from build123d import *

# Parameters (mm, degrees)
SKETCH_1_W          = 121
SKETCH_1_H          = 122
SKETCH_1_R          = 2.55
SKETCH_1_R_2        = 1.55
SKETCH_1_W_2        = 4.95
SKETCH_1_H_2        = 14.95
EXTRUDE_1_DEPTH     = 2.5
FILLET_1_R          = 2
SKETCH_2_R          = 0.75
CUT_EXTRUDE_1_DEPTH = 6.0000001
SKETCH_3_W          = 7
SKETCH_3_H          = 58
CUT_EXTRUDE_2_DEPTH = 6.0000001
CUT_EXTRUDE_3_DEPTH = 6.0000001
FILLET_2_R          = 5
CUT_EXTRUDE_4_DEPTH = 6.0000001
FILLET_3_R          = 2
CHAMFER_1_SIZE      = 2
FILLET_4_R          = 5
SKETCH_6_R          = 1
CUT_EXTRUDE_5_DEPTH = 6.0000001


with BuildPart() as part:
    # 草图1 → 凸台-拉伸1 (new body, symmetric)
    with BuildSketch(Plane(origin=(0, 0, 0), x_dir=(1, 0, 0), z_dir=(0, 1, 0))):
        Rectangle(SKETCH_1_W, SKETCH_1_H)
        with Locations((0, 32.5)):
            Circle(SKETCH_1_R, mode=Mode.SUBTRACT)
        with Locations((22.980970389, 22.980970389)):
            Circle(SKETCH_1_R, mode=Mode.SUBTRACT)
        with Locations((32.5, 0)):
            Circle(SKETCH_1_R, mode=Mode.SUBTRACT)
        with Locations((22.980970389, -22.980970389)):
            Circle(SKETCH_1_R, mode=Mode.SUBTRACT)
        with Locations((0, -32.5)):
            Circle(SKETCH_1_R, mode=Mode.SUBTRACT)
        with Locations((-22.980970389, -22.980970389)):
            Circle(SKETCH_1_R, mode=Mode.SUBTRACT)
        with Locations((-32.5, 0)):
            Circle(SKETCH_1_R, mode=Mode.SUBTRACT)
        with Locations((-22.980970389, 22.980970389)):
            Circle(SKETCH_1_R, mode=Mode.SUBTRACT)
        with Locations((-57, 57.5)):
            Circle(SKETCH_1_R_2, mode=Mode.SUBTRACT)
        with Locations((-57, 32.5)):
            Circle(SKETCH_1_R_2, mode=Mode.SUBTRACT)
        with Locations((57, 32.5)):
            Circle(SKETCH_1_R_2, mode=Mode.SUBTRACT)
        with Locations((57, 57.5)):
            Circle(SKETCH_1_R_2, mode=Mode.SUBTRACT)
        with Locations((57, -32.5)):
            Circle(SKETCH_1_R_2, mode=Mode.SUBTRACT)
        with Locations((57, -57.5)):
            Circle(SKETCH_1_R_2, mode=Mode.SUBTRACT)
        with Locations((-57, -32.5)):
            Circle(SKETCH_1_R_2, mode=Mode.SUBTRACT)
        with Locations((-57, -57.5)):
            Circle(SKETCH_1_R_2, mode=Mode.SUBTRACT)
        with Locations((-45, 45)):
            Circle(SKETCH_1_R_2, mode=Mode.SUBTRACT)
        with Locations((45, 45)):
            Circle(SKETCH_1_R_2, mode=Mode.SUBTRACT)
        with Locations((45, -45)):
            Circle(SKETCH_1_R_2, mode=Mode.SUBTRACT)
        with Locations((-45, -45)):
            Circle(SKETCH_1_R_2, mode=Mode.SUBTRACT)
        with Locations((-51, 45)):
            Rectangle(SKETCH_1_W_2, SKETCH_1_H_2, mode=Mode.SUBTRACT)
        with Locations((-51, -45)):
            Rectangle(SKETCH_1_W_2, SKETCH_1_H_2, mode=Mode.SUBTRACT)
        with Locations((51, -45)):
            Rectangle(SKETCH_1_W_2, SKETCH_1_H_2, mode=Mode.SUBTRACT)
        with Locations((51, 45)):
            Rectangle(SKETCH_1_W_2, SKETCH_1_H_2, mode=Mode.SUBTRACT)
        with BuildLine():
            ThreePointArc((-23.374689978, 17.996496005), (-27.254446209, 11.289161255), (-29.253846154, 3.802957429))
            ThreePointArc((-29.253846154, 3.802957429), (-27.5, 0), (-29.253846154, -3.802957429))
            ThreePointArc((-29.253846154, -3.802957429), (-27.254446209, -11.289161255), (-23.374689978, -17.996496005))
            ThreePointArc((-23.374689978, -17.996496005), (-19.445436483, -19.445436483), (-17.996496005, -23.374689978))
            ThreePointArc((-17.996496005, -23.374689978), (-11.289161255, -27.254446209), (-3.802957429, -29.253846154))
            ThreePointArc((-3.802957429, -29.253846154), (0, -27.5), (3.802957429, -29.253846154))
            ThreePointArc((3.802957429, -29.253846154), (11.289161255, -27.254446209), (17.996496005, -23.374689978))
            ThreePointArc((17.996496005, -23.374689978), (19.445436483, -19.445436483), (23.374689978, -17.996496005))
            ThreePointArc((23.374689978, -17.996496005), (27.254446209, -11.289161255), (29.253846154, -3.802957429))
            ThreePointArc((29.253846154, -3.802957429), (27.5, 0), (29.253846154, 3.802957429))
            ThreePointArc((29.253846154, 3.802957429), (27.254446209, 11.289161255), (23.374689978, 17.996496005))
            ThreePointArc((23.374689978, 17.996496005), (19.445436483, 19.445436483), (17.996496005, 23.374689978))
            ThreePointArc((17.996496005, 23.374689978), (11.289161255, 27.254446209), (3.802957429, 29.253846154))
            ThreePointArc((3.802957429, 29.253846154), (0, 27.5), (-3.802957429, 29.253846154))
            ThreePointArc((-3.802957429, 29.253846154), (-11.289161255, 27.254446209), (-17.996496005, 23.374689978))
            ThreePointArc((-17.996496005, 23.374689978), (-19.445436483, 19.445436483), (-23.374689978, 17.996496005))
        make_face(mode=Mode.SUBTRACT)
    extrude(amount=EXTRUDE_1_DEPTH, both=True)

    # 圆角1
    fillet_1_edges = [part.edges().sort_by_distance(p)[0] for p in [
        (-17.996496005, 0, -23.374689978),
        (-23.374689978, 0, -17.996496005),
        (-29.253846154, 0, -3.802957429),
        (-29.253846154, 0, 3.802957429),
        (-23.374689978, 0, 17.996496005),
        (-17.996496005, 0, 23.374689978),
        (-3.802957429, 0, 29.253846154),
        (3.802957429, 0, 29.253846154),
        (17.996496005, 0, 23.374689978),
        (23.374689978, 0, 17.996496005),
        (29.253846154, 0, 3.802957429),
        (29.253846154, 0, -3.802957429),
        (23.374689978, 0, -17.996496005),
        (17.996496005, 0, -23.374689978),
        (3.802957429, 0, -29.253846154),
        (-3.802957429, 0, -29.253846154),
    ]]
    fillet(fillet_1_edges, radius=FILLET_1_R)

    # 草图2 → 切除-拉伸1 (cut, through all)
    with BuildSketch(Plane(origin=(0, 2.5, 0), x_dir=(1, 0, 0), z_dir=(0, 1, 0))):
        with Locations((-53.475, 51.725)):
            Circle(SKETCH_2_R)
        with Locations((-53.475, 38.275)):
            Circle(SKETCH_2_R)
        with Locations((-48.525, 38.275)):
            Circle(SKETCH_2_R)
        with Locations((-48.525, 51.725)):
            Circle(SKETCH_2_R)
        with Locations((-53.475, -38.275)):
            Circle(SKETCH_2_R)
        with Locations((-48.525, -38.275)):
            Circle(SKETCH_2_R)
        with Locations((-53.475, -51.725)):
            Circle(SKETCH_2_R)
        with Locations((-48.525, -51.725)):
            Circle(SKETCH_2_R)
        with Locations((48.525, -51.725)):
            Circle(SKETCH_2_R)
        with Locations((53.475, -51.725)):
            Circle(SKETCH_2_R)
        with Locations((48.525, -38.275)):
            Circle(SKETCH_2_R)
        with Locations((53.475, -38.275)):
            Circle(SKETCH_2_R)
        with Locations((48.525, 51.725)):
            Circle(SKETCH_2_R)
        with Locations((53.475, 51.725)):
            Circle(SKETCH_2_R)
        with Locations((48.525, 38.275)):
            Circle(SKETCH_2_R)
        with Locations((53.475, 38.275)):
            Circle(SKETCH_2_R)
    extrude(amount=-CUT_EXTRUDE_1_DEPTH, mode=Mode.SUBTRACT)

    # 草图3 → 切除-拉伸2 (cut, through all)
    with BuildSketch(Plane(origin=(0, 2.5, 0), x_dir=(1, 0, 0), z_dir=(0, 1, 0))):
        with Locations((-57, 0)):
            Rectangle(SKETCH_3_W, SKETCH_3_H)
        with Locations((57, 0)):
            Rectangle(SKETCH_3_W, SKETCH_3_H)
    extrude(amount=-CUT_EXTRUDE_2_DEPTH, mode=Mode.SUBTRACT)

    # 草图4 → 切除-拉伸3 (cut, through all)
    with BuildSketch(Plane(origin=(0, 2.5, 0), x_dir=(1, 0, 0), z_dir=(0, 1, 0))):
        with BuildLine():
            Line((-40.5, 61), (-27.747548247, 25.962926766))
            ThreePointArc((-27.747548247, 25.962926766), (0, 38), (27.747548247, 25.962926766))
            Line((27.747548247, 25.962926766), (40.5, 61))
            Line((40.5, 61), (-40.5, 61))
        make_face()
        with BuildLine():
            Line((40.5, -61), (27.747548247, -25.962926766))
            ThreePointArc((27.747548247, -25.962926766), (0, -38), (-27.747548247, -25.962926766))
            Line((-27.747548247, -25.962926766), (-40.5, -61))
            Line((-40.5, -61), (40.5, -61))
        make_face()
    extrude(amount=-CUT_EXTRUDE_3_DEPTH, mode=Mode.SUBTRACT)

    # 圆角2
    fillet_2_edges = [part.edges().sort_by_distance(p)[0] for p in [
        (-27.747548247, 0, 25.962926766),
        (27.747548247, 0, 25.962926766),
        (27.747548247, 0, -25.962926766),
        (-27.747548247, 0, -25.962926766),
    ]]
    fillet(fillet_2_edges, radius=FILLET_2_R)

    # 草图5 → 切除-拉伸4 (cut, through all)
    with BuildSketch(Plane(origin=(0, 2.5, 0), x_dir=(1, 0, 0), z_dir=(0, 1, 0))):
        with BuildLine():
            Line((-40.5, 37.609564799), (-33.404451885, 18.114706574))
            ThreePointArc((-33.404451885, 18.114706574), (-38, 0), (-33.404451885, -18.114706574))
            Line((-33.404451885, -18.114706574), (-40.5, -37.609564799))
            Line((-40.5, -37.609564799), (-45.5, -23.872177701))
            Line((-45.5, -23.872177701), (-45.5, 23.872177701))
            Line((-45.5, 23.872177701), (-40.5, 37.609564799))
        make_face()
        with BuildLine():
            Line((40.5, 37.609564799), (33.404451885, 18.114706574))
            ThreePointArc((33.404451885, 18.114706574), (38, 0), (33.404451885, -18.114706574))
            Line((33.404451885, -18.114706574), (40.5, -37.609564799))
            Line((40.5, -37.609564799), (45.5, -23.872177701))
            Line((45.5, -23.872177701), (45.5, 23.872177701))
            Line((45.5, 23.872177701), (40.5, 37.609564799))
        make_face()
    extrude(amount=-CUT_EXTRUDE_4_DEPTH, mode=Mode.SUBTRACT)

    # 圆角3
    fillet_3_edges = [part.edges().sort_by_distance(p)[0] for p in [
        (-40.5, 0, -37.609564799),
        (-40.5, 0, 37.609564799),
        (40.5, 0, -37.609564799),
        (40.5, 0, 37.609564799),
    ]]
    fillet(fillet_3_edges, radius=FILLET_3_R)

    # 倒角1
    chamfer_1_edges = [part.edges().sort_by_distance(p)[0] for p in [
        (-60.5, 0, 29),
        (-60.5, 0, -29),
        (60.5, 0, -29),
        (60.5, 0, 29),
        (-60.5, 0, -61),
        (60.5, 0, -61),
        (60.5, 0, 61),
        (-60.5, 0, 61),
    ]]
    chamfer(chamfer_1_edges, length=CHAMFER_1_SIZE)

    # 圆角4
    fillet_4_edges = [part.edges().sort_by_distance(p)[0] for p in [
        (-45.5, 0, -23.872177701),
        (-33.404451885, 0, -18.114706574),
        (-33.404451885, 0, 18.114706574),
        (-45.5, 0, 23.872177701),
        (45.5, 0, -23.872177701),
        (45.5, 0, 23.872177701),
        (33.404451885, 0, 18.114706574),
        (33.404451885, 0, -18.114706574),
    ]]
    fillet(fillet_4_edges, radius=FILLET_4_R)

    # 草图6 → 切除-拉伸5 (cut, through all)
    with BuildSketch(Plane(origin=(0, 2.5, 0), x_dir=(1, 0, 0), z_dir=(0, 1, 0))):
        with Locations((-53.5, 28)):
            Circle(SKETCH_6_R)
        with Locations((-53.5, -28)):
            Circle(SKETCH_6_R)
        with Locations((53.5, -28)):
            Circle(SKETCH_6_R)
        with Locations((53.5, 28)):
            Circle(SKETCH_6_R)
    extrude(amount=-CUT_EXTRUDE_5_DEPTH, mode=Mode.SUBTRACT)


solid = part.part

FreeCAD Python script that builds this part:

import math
import FreeCAD as App
import Part
import Sketcher

V = App.Vector
Q = App.Units.Quantity


def edges_at(feature, points):
    """Names of the edges that pass closest to the given points."""
    edges = feature.Shape.Edges
    near = lambda p: min(range(len(edges)), key=lambda i: edges[i].distToShape(Part.Vertex(*p))[0])
    return sorted({f"Edge{near(p) + 1}" for p in points})


def add_polygon(sketch, points):
    """Adds a closed chain of lines whose ends are joined by coincident constraints."""
    first, n = sketch.GeometryCount, len(points)
    for a, b in zip(points, points[1:] + points[:1]):
        sketch.addGeometry(Part.LineSegment(App.Vector(*a, 0), App.Vector(*b, 0)), False)
    for i in range(n):
        sketch.addConstraint(Sketcher.Constraint("Coincident", first + i, 2, first + (i + 1) % n, 1))

doc = App.newDocument("Part")
params = doc.addObject("Spreadsheet::Sheet", "Params")
for row, (alias, value) in enumerate([
    ("sketch1_radius", "5 mm"),
    ("sketch1_diameter", "3.1 mm"),
    ("sketch1_diameter2", "5.1 mm"),
    ("sketch1_radius2", "29.5 mm"),
    ("sketch1_width", "121 mm"),
    ("pad1_length", "5 mm"),
    ("fillet_radius", "2 mm"),
    ("sketch2_diameter", "1.5 mm"),
    ("sketch3_width", "7 mm"),
    ("sketch3_height", "58 mm"),
    ("sketch4_radius", "38 mm"),
    ("sketch4_width", "81 mm"),
    ("fillet2_radius", "5 mm"),
    ("sketch5_radius", "38 mm"),
    ("fillet3_radius", "2 mm"),
    ("chamfer_size", "2 mm"),
    ("fillet4_radius", "5 mm"),
    ("sketch6_diameter", "2 mm"),
], start=1):
    params.set(f"A{row}", alias)
    params.set(f"B{row}", "=" + value)
    params.setAlias(f"B{row}", alias)

body = doc.addObject("PartDesign::Body", "Body")

# Sketch on XZ plane
sketch1 = body.newObject("Sketcher::SketchObject", "Sketch")
sketch1.AttachmentSupport = (doc.getObject("XZ_Plane"), [""])
sketch1.MapMode = "FlatFace"
add_polygon(sketch1, [(-60.5, -61), (-60.5, 61), (60.5, 61), (60.5, -61)])  # lines 0-3
sketch1.addGeometry(Part.Circle(V(-57, 57.5, 0), V(0, 0, 1), 1.6), False)  # 4
add_polygon(sketch1, [(-48.5, 52.5), (-53.5, 52.5), (-53.5, 37.5), (-48.5, 37.5)])  # lines 5-8
sketch1.addGeometry(Part.Circle(V(-45, 45, 0), V(0, 0, 1), 1.6), False)  # 9
sketch1.addGeometry(Part.Circle(V(-57, 32.5, 0), V(0, 0, 1), 1.6), False)  # 10
sketch1.addGeometry(Part.Circle(V(0, 32.5, 0), V(0, 0, 1), 2.5), False)  # 11
sketch1.addGeometry(Part.Circle(V(-32.5, 0, 0), V(0, 0, 1), 2.5), False)  # 12
sketch1.addGeometry(Part.Circle(V(-23, 23, 0), V(0, 0, 1), 2.5), False)  # 13
sketch1.addGeometry(Part.ArcOfCircle(Part.Circle(V(0, 0, 0), V(0, 0, 1), 29.5), math.radians(-173), math.radians(-142)), False)  # 14
sketch1.addGeometry(Part.ArcOfCircle(Part.Circle(V(-23, -23, 0), V(0, 0, 1), 5), math.radians(-5), math.radians(95)), False)  # 15
sketch1.addGeometry(Part.ArcOfCircle(Part.Circle(V(0, 0, 0), V(0, 0, 1), 29.5), math.radians(-128), math.radians(-97)), False)  # 16
sketch1.addGeometry(Part.ArcOfCircle(Part.Circle(V(0, -32.5, 0), V(0, 0, 1), 5), math.radians(40), math.radians(140)), False)  # 17
sketch1.addGeometry(Part.ArcOfCircle(Part.Circle(V(0, 0, 0), V(0, 0, 1), 29.5), math.radians(-83), math.radians(-52)), False)  # 18
sketch1.addGeometry(Part.ArcOfCircle(Part.Circle(V(23, -23, 0), V(0, 0, 1), 5), math.radians(85), math.radians(185)), False)  # 19
sketch1.addGeometry(Part.ArcOfCircle(Part.Circle(V(0, 0, 0), V(0, 0, 1), 29.5), math.radians(-38), math.radians(-7)), False)  # 20
sketch1.addGeometry(Part.ArcOfCircle(Part.Circle(V(32.5, 0, 0), V(0, 0, 1), 5), math.radians(130), math.radians(230)), False)  # 21
sketch1.addGeometry(Part.ArcOfCircle(Part.Circle(V(0, 0, 0), V(0, 0, 1), 29.5), math.radians(7), math.radians(38)), False)  # 22
sketch1.addGeometry(Part.ArcOfCircle(Part.Circle(V(23, 23, 0), V(0, 0, 1), 5), math.radians(175), math.radians(275)), False)  # 23
sketch1.addGeometry(Part.ArcOfCircle(Part.Circle(V(0, 0, 0), V(0, 0, 1), 29.5), math.radians(52), math.radians(83)), False)  # 24
sketch1.addGeometry(Part.ArcOfCircle(Part.Circle(V(0, 32.5, 0), V(0, 0, 1), 5), math.radians(-140), math.radians(-40)), False)  # 25
sketch1.addGeometry(Part.ArcOfCircle(Part.Circle(V(0, 0, 0), V(0, 0, 1), 29.5), math.radians(97), math.radians(128)), False)  # 26
sketch1.addGeometry(Part.ArcOfCircle(Part.Circle(V(-23, 23, 0), V(0, 0, 1), 5), math.radians(-95), math.radians(5)), False)  # 27
sketch1.addGeometry(Part.ArcOfCircle(Part.Circle(V(0, 0, 0), V(0, 0, 1), 29.5), math.radians(142), math.radians(173)), False)  # 28
sketch1.addGeometry(Part.ArcOfCircle(Part.Circle(V(-32.5, 0, 0), V(0, 0, 1), 5), math.radians(-50), math.radians(50)), False)  # 29
sketch1.addGeometry(Part.Circle(V(57, 57.5, 0), V(0, 0, 1), 1.6), False)  # 30
sketch1.addGeometry(Part.Circle(V(45, 45, 0), V(0, 0, 1), 1.6), False)  # 31
add_polygon(sketch1, [(53.5, 52.5), (48.5, 52.5), (48.5, 37.5), (53.5, 37.5)])  # lines 32-35
sketch1.addGeometry(Part.Circle(V(57, 32.5, 0), V(0, 0, 1), 1.6), False)  # 36
sketch1.addGeometry(Part.Circle(V(23, 23, 0), V(0, 0, 1), 2.5), False)  # 37
sketch1.addGeometry(Part.Circle(V(32.5, 0, 0), V(0, 0, 1), 2.5), False)  # 38
sketch1.addGeometry(Part.Circle(V(-23, -23, 0), V(0, 0, 1), 2.5), False)  # 39
sketch1.addGeometry(Part.Circle(V(-57, -32.5, 0), V(0, 0, 1), 1.6), False)  # 40
add_polygon(sketch1, [(-48.5, -37.5), (-53.5, -37.5), (-53.5, -52.5), (-48.5, -52.5)])  # lines 41-44
sketch1.addGeometry(Part.Circle(V(-45, -45, 0), V(0, 0, 1), 1.6), False)  # 45
sketch1.addGeometry(Part.Circle(V(-57, -57.5, 0), V(0, 0, 1), 1.6), False)  # 46
sketch1.addGeometry(Part.Circle(V(0, -32.5, 0), V(0, 0, 1), 2.5), False)  # 47
sketch1.addGeometry(Part.Circle(V(23, -23, 0), V(0, 0, 1), 2.5), False)  # 48
sketch1.addGeometry(Part.Circle(V(57, -32.5, 0), V(0, 0, 1), 1.6), False)  # 49
sketch1.addGeometry(Part.Circle(V(45, -45, 0), V(0, 0, 1), 1.6), False)  # 50
add_polygon(sketch1, [(53.5, -37.5), (48.5, -37.5), (48.5, -52.5), (53.5, -52.5)])  # lines 51-54
sketch1.addGeometry(Part.Circle(V(57, -57.5, 0), V(0, 0, 1), 1.6), False)  # 55
sketch1.addConstraint([
    Sketcher.Constraint("Coincident", 14, 2, 15, 2),
    Sketcher.Constraint("Coincident", 15, 1, 16, 1),
    Sketcher.Constraint("Coincident", 16, 2, 17, 2),
    Sketcher.Constraint("Coincident", 17, 1, 18, 1),
    Sketcher.Constraint("Coincident", 18, 2, 19, 2),
    Sketcher.Constraint("Coincident", 19, 1, 20, 1),
    Sketcher.Constraint("Coincident", 20, 2, 21, 2),
    Sketcher.Constraint("Coincident", 21, 1, 22, 1),
    Sketcher.Constraint("Coincident", 22, 2, 23, 2),
    Sketcher.Constraint("Coincident", 23, 1, 24, 1),
    Sketcher.Constraint("Coincident", 24, 2, 25, 2),
    Sketcher.Constraint("Coincident", 25, 1, 26, 1),
    Sketcher.Constraint("Coincident", 26, 2, 27, 2),
    Sketcher.Constraint("Coincident", 27, 1, 28, 1),
    Sketcher.Constraint("Coincident", 28, 2, 29, 2),
    Sketcher.Constraint("Coincident", 29, 1, 14, 1),
    Sketcher.Constraint("Vertical", 0),
    Sketcher.Constraint("Horizontal", 1),
    Sketcher.Constraint("Vertical", 2),
    Sketcher.Constraint("Horizontal", 3),
    Sketcher.Constraint("Horizontal", 5),
    Sketcher.Constraint("Vertical", 6),
    Sketcher.Constraint("Horizontal", 7),
    Sketcher.Constraint("Vertical", 8),
    Sketcher.Constraint("Horizontal", 32),
    Sketcher.Constraint("Vertical", 33),
    Sketcher.Constraint("Horizontal", 34),
    Sketcher.Constraint("Vertical", 35),
    Sketcher.Constraint("Horizontal", 41),
    Sketcher.Constraint("Vertical", 42),
    Sketcher.Constraint("Horizontal", 43),
    Sketcher.Constraint("Vertical", 44),
    Sketcher.Constraint("Horizontal", 51),
    Sketcher.Constraint("Vertical", 52),
    Sketcher.Constraint("Horizontal", 53),
    Sketcher.Constraint("Vertical", 54),
    Sketcher.Constraint("Coincident", 14, 3, -1, 1),
    Sketcher.Constraint("Coincident", 16, 3, -1, 1),
    Sketcher.Constraint("Coincident", 18, 3, -1, 1),
    Sketcher.Constraint("Coincident", 20, 3, -1, 1),
    Sketcher.Constraint("Coincident", 22, 3, -1, 1),
    Sketcher.Constraint("Coincident", 24, 3, -1, 1),
    Sketcher.Constraint("Coincident", 26, 3, -1, 1),
    Sketcher.Constraint("Coincident", 28, 3, -1, 1),
    Sketcher.Constraint("Coincident", 25, 3, 11, 3),
    Sketcher.Constraint("Coincident", 27, 3, 13, 3),
    Sketcher.Constraint("Coincident", 29, 3, 12, 3),
    Sketcher.Constraint("Coincident", 37, 3, 23, 3),
    Sketcher.Constraint("Coincident", 38, 3, 21, 3),
    Sketcher.Constraint("Coincident", 39, 3, 15, 3),
    Sketcher.Constraint("Coincident", 47, 3, 17, 3),
    Sketcher.Constraint("Coincident", 48, 3, 19, 3),
    Sketcher.Constraint("Equal", 4, 9),
    Sketcher.Constraint("Equal", 9, 10),
    Sketcher.Constraint("Equal", 11, 12),
    Sketcher.Constraint("Equal", 12, 13),
    Sketcher.Constraint("Equal", 14, 16),
    Sketcher.Constraint("Equal", 15, 17),
    Sketcher.Constraint("Equal", 16, 18),
    Sketcher.Constraint("Equal", 17, 19),
    Sketcher.Constraint("Equal", 18, 20),
    Sketcher.Constraint("Equal", 19, 21),
    Sketcher.Constraint("Equal", 20, 22),
    Sketcher.Constraint("Equal", 21, 23),
    Sketcher.Constraint("Equal", 22, 24),
    Sketcher.Constraint("Equal", 23, 25),
    Sketcher.Constraint("Equal", 24, 26),
    Sketcher.Constraint("Equal", 25, 27),
    Sketcher.Constraint("Equal", 26, 28),
    Sketcher.Constraint("Equal", 27, 29),
    Sketcher.Constraint("Equal", 10, 30),
    Sketcher.Constraint("Equal", 30, 31),
    Sketcher.Constraint("Equal", 31, 36),
    Sketcher.Constraint("Equal", 13, 37),
    Sketcher.Constraint("Equal", 37, 38),
    Sketcher.Constraint("Equal", 38, 39),
    Sketcher.Constraint("Equal", 36, 40),
    Sketcher.Constraint("Equal", 40, 45),
    Sketcher.Constraint("Equal", 45, 46),
    Sketcher.Constraint("Equal", 39, 47),
    Sketcher.Constraint("Equal", 47, 48),
    Sketcher.Constraint("Equal", 46, 49),
    Sketcher.Constraint("Equal", 49, 50),
    Sketcher.Constraint("Equal", 50, 55),
    Sketcher.Constraint("Symmetric", 11, 3, 17, 3, -1, 1),
    Sketcher.Constraint("Symmetric", 13, 3, 19, 3, -1, 1),
    Sketcher.Constraint("Symmetric", 12, 3, 21, 3, -1, 1),
    Sketcher.Constraint("Symmetric", 15, 3, 23, 3, -1, 1),
    Sketcher.Constraint("Symmetric", 36, 3, 40, 3, -1, 1),
    Sketcher.Constraint("Symmetric", 31, 3, 45, 3, -1, 1),
    Sketcher.Constraint("Symmetric", 30, 3, 46, 3, -1, 1),
    Sketcher.Constraint("Symmetric", 10, 3, 49, 3, -1, 1),
    Sketcher.Constraint("Symmetric", 9, 3, 50, 3, -1, 1),
    Sketcher.Constraint("Symmetric", 4, 3, 55, 3, -1, 1),
    Sketcher.Constraint("Symmetric", 0, 2, 2, 2, -1, 1),
    Sketcher.Constraint("Symmetric", 34, 2, 41, 2, -1, 1),
    Sketcher.Constraint("Symmetric", 32, 2, 43, 2, -1, 1),
    Sketcher.Constraint("Symmetric", 7, 2, 51, 2, -1, 1),
    Sketcher.Constraint("Symmetric", 5, 2, 53, 2, -1, 1),
    Sketcher.Constraint("Symmetric", 15, 3, 19, 3, -2),
    Sketcher.Constraint("Symmetric", 4, 3, 30, 3, -2),
    Sketcher.Constraint("Symmetric", 9, 3, 31, 3, -2),
    Sketcher.Constraint("Symmetric", 10, 3, 36, 3, -2),
    Sketcher.Constraint("Symmetric", 8, 2, 32, 2, -2),
    Sketcher.Constraint("Symmetric", 6, 2, 34, 2, -2),
    Sketcher.Constraint("PointOnObject", 11, 3, -2),
    Sketcher.Constraint("PointOnObject", 12, 3, -1),
    Sketcher.Constraint("Horizontal", 10, 3, 11, 3),
    Sketcher.Constraint("Vertical", 4, 3, 10, 3),
    Sketcher.Constraint("Radius", 15, Q("5 mm")),
    Sketcher.Constraint("Diameter", 4, Q("3.1 mm")),
    Sketcher.Constraint("Diameter", 11, Q("5.1 mm")),
    Sketcher.Constraint("Radius", 14, Q("29.5 mm")),
    Sketcher.Constraint("DistanceX", 1, 1, 1, 2, Q("121 mm")),
    Sketcher.Constraint("DistanceY", 0, 1, 0, 2, Q("122 mm")),
    Sketcher.Constraint("DistanceX", 4, 3, -1, 1, Q("57 mm")),
    Sketcher.Constraint("DistanceX", 9, 3, -1, 1, Q("45 mm")),
    Sketcher.Constraint("DistanceY", -1, 1, 9, 3, Q("45 mm")),
    Sketcher.Constraint("DistanceX", 5, 2, 5, 1, Q("4.95 mm")),
    Sketcher.Constraint("DistanceY", 6, 2, 6, 1, Q("14.95 mm")),
    Sketcher.Constraint("DistanceY", -1, 1, 4, 3, Q("57.5 mm")),
    Sketcher.Constraint("DistanceY", -1, 1, 10, 3, Q("32.5 mm")),
    Sketcher.Constraint("DistanceX", 12, 3, -1, 1, Q("32.5 mm")),
    Sketcher.Constraint("DistanceX", 5, 2, -1, 1, Q("53.475 mm")),
    Sketcher.Constraint("DistanceY", -1, 1, 5, 2, Q("52.475 mm")),
    Sketcher.Constraint("DistanceX", 13, 3, -1, 1, Q("22.98097 mm")),
    Sketcher.Constraint("DistanceY", -1, 1, 13, 3, Q("22.98097 mm")),
])
sketch1.setExpression("Constraints[129]", "Params.sketch1_radius")
sketch1.setExpression("Constraints[130]", "Params.sketch1_diameter")
sketch1.setExpression("Constraints[131]", "Params.sketch1_diameter2")
sketch1.setExpression("Constraints[132]", "Params.sketch1_radius2")
sketch1.setExpression("Constraints[133]", "Params.sketch1_width")
pad1 = body.newObject("PartDesign::Pad", "Pad")
pad1.Profile = sketch1
pad1.setExpression("Length", "Params.pad1_length")
pad1.Midplane = True
doc.recompute()

fillet = body.newObject("PartDesign::Fillet", "Fillet")
fillet.Base = (pad1, edges_at(pad1, [
    (-17.996, 0, -23.375),
    (-23.375, 0, -17.996),
    (-29.254, 0, -3.803),
    (-29.254, 0, 3.803),
    (-23.375, 0, 17.996),
    (-17.996, 0, 23.375),
    (-3.803, 0, 29.254),
    (3.803, 0, 29.254),
    (17.996, 0, 23.375),
    (23.375, 0, 17.996),
    (29.254, 0, 3.803),
    (29.254, 0, -3.803),
    (23.375, 0, -17.996),
    (17.996, 0, -23.375),
    (3.803, 0, -29.254),
    (-3.803, 0, -29.254),
]))
fillet.setExpression("Radius", "Params.fillet_radius")

# Sketch on XZ plane
sketch2 = body.newObject("Sketcher::SketchObject", "Sketch001")
sketch2.AttachmentSupport = (doc.getObject("XZ_Plane"), [""])
sketch2.MapMode = "FlatFace"
sketch2.AttachmentOffset = App.Placement(V(0, 0, -2.5), App.Rotation())
sketch2.addGeometry([
    Part.Circle(V(-53.5, -51.7, 0), V(0, 0, 1), 0.8),  # 0
    Part.Circle(V(-53.5, -38.3, 0), V(0, 0, 1), 0.8),  # 1
    Part.Circle(V(-48.5, -38.3, 0), V(0, 0, 1), 0.8),  # 2
    Part.Circle(V(-48.5, -51.7, 0), V(0, 0, 1), 0.8),  # 3
    Part.Circle(V(-53.5, 38.3, 0), V(0, 0, 1), 0.8),  # 4
    Part.Circle(V(-48.5, 38.3, 0), V(0, 0, 1), 0.8),  # 5
    Part.Circle(V(-53.5, 51.7, 0), V(0, 0, 1), 0.8),  # 6
    Part.Circle(V(-48.5, 51.7, 0), V(0, 0, 1), 0.8),  # 7
    Part.Circle(V(48.5, 51.7, 0), V(0, 0, 1), 0.8),  # 8
    Part.Circle(V(53.5, 51.7, 0), V(0, 0, 1), 0.8),  # 9
    Part.Circle(V(48.5, 38.3, 0), V(0, 0, 1), 0.8),  # 10
    Part.Circle(V(53.5, 38.3, 0), V(0, 0, 1), 0.8),  # 11
    Part.Circle(V(48.5, -51.7, 0), V(0, 0, 1), 0.8),  # 12
    Part.Circle(V(53.5, -51.7, 0), V(0, 0, 1), 0.8),  # 13
    Part.Circle(V(48.5, -38.3, 0), V(0, 0, 1), 0.8),  # 14
    Part.Circle(V(53.5, -38.3, 0), V(0, 0, 1), 0.8),  # 15
], False)
sketch2.addConstraint([
    Sketcher.Constraint("Equal", 0, 1),
    Sketcher.Constraint("Equal", 1, 2),
    Sketcher.Constraint("Equal", 2, 3),
    Sketcher.Constraint("Equal", 3, 4),
    Sketcher.Constraint("Equal", 4, 5),
    Sketcher.Constraint("Equal", 5, 6),
    Sketcher.Constraint("Equal", 6, 7),
    Sketcher.Constraint("Equal", 7, 8),
    Sketcher.Constraint("Equal", 8, 9),
    Sketcher.Constraint("Equal", 9, 10),
    Sketcher.Constraint("Equal", 10, 11),
    Sketcher.Constraint("Equal", 11, 12),
    Sketcher.Constraint("Equal", 12, 13),
    Sketcher.Constraint("Equal", 13, 14),
    Sketcher.Constraint("Equal", 14, 15),
    Sketcher.Constraint("Symmetric", 3, 3, 8, 3, -1, 1),
    Sketcher.Constraint("Symmetric", 0, 3, 9, 3, -1, 1),
    Sketcher.Constraint("Symmetric", 2, 3, 10, 3, -1, 1),
    Sketcher.Constraint("Symmetric", 1, 3, 11, 3, -1, 1),
    Sketcher.Constraint("Symmetric", 7, 3, 12, 3, -1, 1),
    Sketcher.Constraint("Symmetric", 6, 3, 13, 3, -1, 1),
    Sketcher.Constraint("Symmetric", 5, 3, 14, 3, -1, 1),
    Sketcher.Constraint("Symmetric", 4, 3, 15, 3, -1, 1),
    Sketcher.Constraint("Symmetric", 7, 3, 8, 3, -2),
    Sketcher.Constraint("Symmetric", 6, 3, 9, 3, -2),
    Sketcher.Constraint("Symmetric", 5, 3, 10, 3, -2),
    Sketcher.Constraint("Symmetric", 4, 3, 11, 3, -2),
    Sketcher.Constraint("Horizontal", 1, 3, 2, 3),
    Sketcher.Constraint("Horizontal", 0, 3, 3, 3),
    Sketcher.Constraint("Vertical", 0, 3, 1, 3),
    Sketcher.Constraint("Vertical", 2, 3, 3, 3),
    Sketcher.Constraint("Diameter", 0, Q("1.5 mm")),
    Sketcher.Constraint("DistanceY", 0, 3, 4, 3, Q("90 mm")),
    Sketcher.Constraint("DistanceX", 6, 3, 8, 3, Q("102 mm")),
    Sketcher.Constraint("DistanceY", 0, 3, 1, 3, Q("13.45 mm")),
    Sketcher.Constraint("DistanceX", 1, 3, 2, 3, Q("4.95 mm")),
])
sketch2.setExpression("Constraints[31]", "Params.sketch2_diameter")
pocket1 = body.newObject("PartDesign::Pocket", "Pocket")
pocket1.Profile = sketch2
pocket1.Type = "ThroughAll"
pocket1.Reversed = True

# Sketch on XZ plane
sketch3 = body.newObject("Sketcher::SketchObject", "Sketch002")
sketch3.AttachmentSupport = (doc.getObject("XZ_Plane"), [""])
sketch3.MapMode = "FlatFace"
sketch3.AttachmentOffset = App.Placement(V(0, 0, -2.5), App.Rotation())
add_polygon(sketch3, [(-60, -29), (-60, 29), (-54, 29), (-54, -29)])  # lines 0-3
add_polygon(sketch3, [(54, -29), (54, 29), (60, 29), (60, -29)])  # lines 4-7
sketch3.addConstraint([
    Sketcher.Constraint("Vertical", 0),
    Sketcher.Constraint("Horizontal", 1),
    Sketcher.Constraint("Vertical", 2),
    Sketcher.Constraint("Horizontal", 3),
    Sketcher.Constraint("Vertical", 4),
    Sketcher.Constraint("Horizontal", 5),
    Sketcher.Constraint("Vertical", 6),
    Sketcher.Constraint("Horizontal", 7),
    Sketcher.Constraint("Symmetric", 2, 2, 4, 2, -1, 1),
    Sketcher.Constraint("Symmetric", 0, 2, 6, 2, -1, 1),
    Sketcher.Constraint("Horizontal", 1, 2, 4, 2),
    Sketcher.Constraint("DistanceX", 1, 1, 1, 2, Q("7 mm")),
    Sketcher.Constraint("DistanceY", 0, 1, 0, 2, Q("58 mm")),
    Sketcher.Constraint("DistanceX", 1, 2, 4, 2, Q("107 mm")),
])
sketch3.setExpression("Constraints[19]", "Params.sketch3_width")
sketch3.setExpression("Constraints[20]", "Params.sketch3_height")
pocket2 = body.newObject("PartDesign::Pocket", "Pocket001")
pocket2.Profile = sketch3
pocket2.Type = "ThroughAll"
pocket2.Reversed = True

# Sketch on XZ plane
sketch4 = body.newObject("Sketcher::SketchObject", "Sketch003")
sketch4.AttachmentSupport = (doc.getObject("XZ_Plane"), [""])
sketch4.MapMode = "FlatFace"
sketch4.AttachmentOffset = App.Placement(V(0, 0, -2.5), App.Rotation())
sketch4.addGeometry([
    Part.LineSegment(V(-40, -61, 0), V(-28, -26, 0)),  # 0
    Part.ArcOfCircle(Part.Circle(V(0, 0, 0), V(0, 0, 1), 38), math.radians(-137), math.radians(-43)),  # 1
    Part.LineSegment(V(28, -26, 0), V(40, -61, 0)),  # 2
    Part.LineSegment(V(40, -61, 0), V(-40, -61, 0)),  # 3
    Part.LineSegment(V(40, 61, 0), V(28, 26, 0)),  # 4
    Part.ArcOfCircle(Part.Circle(V(0, 0, 0), V(0, 0, 1), 38), math.radians(43), math.radians(137)),  # 5
    Part.LineSegment(V(-28, 26, 0), V(-40, 61, 0)),  # 6
    Part.LineSegment(V(-40, 61, 0), V(40, 61, 0)),  # 7
], False)
sketch4.addConstraint([
    Sketcher.Constraint("Coincident", 0, 2, 1, 1),
    Sketcher.Constraint("Coincident", 1, 2, 2, 1),
    Sketcher.Constraint("Coincident", 2, 2, 3, 1),
    Sketcher.Constraint("Coincident", 3, 2, 0, 1),
    Sketcher.Constraint("Coincident", 4, 2, 5, 1),
    Sketcher.Constraint("Coincident", 5, 2, 6, 1),
    Sketcher.Constraint("Coincident", 6, 2, 7, 1),
    Sketcher.Constraint("Coincident", 7, 2, 4, 1),
    Sketcher.Constraint("Horizontal", 3),
    Sketcher.Constraint("Horizontal", 7),
    Sketcher.Constraint("Coincident", 1, 3, -1, 1),
    Sketcher.Constraint("Coincident", 5, 3, -1, 1),
    Sketcher.Constraint("Equal", 1, 5),
    Sketcher.Constraint("Symmetric", 2, 2, 6, 2, -1, 1),
    Sketcher.Constraint("Parallel", 0, 4),
    Sketcher.Constraint("Parallel", 2, 6),
    Sketcher.Constraint("Horizontal", 0, 2, 1, 2),
    Sketcher.Constraint("Horizontal", 4, 2, 5, 2),
    Sketcher.Constraint("Vertical", 3, 2, 6, 2),
    Sketcher.Constraint("Radius", 1, Q("38 mm")),
    Sketcher.Constraint("DistanceX", 3, 2, 3, 1, Q("81 mm")),
    Sketcher.Constraint("Angle", 0, Q("70 deg")),
    Sketcher.Constraint("DistanceY", 2, 2, -1, 1, Q("61 mm")),
])
sketch4.setExpression("Constraints[19]", "Params.sketch4_radius")
sketch4.setExpression("Constraints[20]", "Params.sketch4_width")
pocket3 = body.newObject("PartDesign::Pocket", "Pocket002")
pocket3.Profile = sketch4
pocket3.Type = "ThroughAll"
pocket3.Reversed = True
doc.recompute()

fillet2 = body.newObject("PartDesign::Fillet", "Fillet001")
fillet2.Base = (pocket3, edges_at(pocket3, [
    (-27.748, 0, 25.963),
    (27.748, 0, 25.963),
    (27.748, 0, -25.963),
    (-27.748, 0, -25.963),
]))
fillet2.setExpression("Radius", "Params.fillet2_radius")

# Sketch on XZ plane
sketch5 = body.newObject("Sketcher::SketchObject", "Sketch004")
sketch5.AttachmentSupport = (doc.getObject("XZ_Plane"), [""])
sketch5.MapMode = "FlatFace"
sketch5.AttachmentOffset = App.Placement(V(0, 0, -2.5), App.Rotation())
sketch5.addGeometry([
    Part.LineSegment(V(-33, -18, 0), V(-40, -38, 0)),  # 0
    Part.LineSegment(V(-40, -38, 0), V(-46, -24, 0)),  # 1
    Part.LineSegment(V(-46, -24, 0), V(-46, 24, 0)),  # 2
    Part.LineSegment(V(-46, 24, 0), V(-40, 38, 0)),  # 3
    Part.LineSegment(V(-40, 38, 0), V(-33, 18, 0)),  # 4
    Part.ArcOfCircle(Part.Circle(V(0, 0, 0), V(0, 0, 1), 38), math.radians(152), math.radians(208)),  # 5
    Part.LineSegment(V(40, -38, 0), V(33, -18, 0)),  # 6
    Part.ArcOfCircle(Part.Circle(V(0, 0, 0), V(0, 0, 1), 38), math.radians(-28), math.radians(28)),  # 7
    Part.LineSegment(V(33, 18, 0), V(40, 38, 0)),  # 8
    Part.LineSegment(V(40, 38, 0), V(46, 24, 0)),  # 9
    Part.LineSegment(V(46, 24, 0), V(46, -24, 0)),  # 10
    Part.LineSegment(V(46, -24, 0), V(40, -38, 0)),  # 11
], False)
sketch5.addConstraint([
    Sketcher.Constraint("Coincident", 0, 2, 1, 1),
    Sketcher.Constraint("Coincident", 1, 2, 2, 1),
    Sketcher.Constraint("Coincident", 2, 2, 3, 1),
    Sketcher.Constraint("Coincident", 3, 2, 4, 1),
    Sketcher.Constraint("Coincident", 4, 2, 5, 1),
    Sketcher.Constraint("Coincident", 5, 2, 0, 1),
    Sketcher.Constraint("Coincident", 6, 2, 7, 1),
    Sketcher.Constraint("Coincident", 7, 2, 8, 1),
    Sketcher.Constraint("Coincident", 8, 2, 9, 1),
    Sketcher.Constraint("Coincident", 9, 2, 10, 1),
    Sketcher.Constraint("Coincident", 10, 2, 11, 1),
    Sketcher.Constraint("Coincident", 11, 2, 6, 1),
    Sketcher.Constraint("Vertical", 2),
    Sketcher.Constraint("Vertical", 10),
    Sketcher.Constraint("Coincident", 5, 3, -1, 1),
    Sketcher.Constraint("Coincident", 7, 3, -1, 1),
    Sketcher.Constraint("Equal", 5, 7),
    Sketcher.Constraint("Symmetric", 0, 2, 8, 2, -1, 1),
    Sketcher.Constraint("Symmetric", 1, 2, 9, 2, -1, 1),
    Sketcher.Constraint("Symmetric", 3, 2, 11, 2, -1, 1),
    Sketcher.Constraint("Symmetric", 3, 2, 8, 2, -2),
    Sketcher.Constraint("Parallel", 0, 3),
    Sketcher.Constraint("Parallel", 1, 4),
    Sketcher.Constraint("Parallel", 4, 6),
    Sketcher.Constraint("Parallel", 3, 8),
    Sketcher.Constraint("Parallel", 8, 11),
    Sketcher.Constraint("Horizontal", 5, 2, 6, 2),
    Sketcher.Constraint("Radius", 5, Q("38 mm")),
    Sketcher.Constraint("Angle", 0, Q("-110 deg")),
    Sketcher.Constraint("DistanceX", 1, 2, 0, 2, Q("5 mm")),
    Sketcher.Constraint("DistanceX", 0, 2, -1, 1, Q("40.5 mm")),
    Sketcher.Constraint("DistanceY", 2, 1, 2, 2, Q("47.744355 mm")),
])
sketch5.setExpression("Constraints[27]", "Params.sketch5_radius")
pocket4 = body.newObject("PartDesign::Pocket", "Pocket003")
pocket4.Profile = sketch5
pocket4.Type = "ThroughAll"
pocket4.Reversed = True
doc.recompute()

fillet3 = body.newObject("PartDesign::Fillet", "Fillet002")
fillet3.Base = (pocket4, edges_at(pocket4, [
    (-40.5, 0, -37.61),
    (-40.5, 0, 37.61),
    (40.5, 0, -37.61),
    (40.5, 0, 37.61),
]))
fillet3.setExpression("Radius", "Params.fillet3_radius")
doc.recompute()

chamfer = body.newObject("PartDesign::Chamfer", "Chamfer")
chamfer.Base = (fillet3, edges_at(fillet3, [
    (-60.5, 0, 29),
    (-60.5, 0, -29),
    (60.5, 0, -29),
    (60.5, 0, 29),
    (-60.5, 0, -61),
    (60.5, 0, -61),
    (60.5, 0, 61),
    (-60.5, 0, 61),
]))
chamfer.setExpression("Size", "Params.chamfer_size")
doc.recompute()

fillet4 = body.newObject("PartDesign::Fillet", "Fillet003")
fillet4.Base = (chamfer, edges_at(chamfer, [
    (-45.5, 0, -23.872),
    (-33.404, 0, -18.115),
    (-33.404, 0, 18.115),
    (-45.5, 0, 23.872),
    (45.5, 0, -23.872),
    (45.5, 0, 23.872),
    (33.404, 0, 18.115),
    (33.404, 0, -18.115),
]))
fillet4.setExpression("Radius", "Params.fillet4_radius")

# Sketch on XZ plane
sketch6 = body.newObject("Sketcher::SketchObject", "Sketch005")
sketch6.AttachmentSupport = (doc.getObject("XZ_Plane"), [""])
sketch6.MapMode = "FlatFace"
sketch6.AttachmentOffset = App.Placement(V(0, 0, -2.5), App.Rotation())
sketch6.addGeometry([
    Part.Circle(V(-53.5, -28, 0), V(0, 0, 1), 1),
    Part.Circle(V(-53.5, 28, 0), V(0, 0, 1), 1),
    Part.Circle(V(53.5, 28, 0), V(0, 0, 1), 1),
    Part.Circle(V(53.5, -28, 0), V(0, 0, 1), 1),
], False)
sketch6.addConstraint([
    Sketcher.Constraint("Equal", 0, 1),
    Sketcher.Constraint("Equal", 1, 2),
    Sketcher.Constraint("Equal", 2, 3),
    Sketcher.Constraint("Symmetric", 0, 3, 2, 3, -1, 1),
    Sketcher.Constraint("Symmetric", 1, 3, 3, 3, -1, 1),
    Sketcher.Constraint("Symmetric", 1, 3, 2, 3, -2),
    Sketcher.Constraint("Diameter", 0, Q("2 mm")),
    Sketcher.Constraint("DistanceY", 0, 3, -1, 1, Q("28 mm")),
    Sketcher.Constraint("DistanceX", 1, 3, 2, 3, Q("107 mm")),
])
sketch6.setExpression("Constraints[6]", "Params.sketch6_diameter")
pocket5 = body.newObject("PartDesign::Pocket", "Pocket004")
pocket5.Profile = sketch6
pocket5.Type = "ThroughAll"
pocket5.Reversed = True

doc.recompute()
